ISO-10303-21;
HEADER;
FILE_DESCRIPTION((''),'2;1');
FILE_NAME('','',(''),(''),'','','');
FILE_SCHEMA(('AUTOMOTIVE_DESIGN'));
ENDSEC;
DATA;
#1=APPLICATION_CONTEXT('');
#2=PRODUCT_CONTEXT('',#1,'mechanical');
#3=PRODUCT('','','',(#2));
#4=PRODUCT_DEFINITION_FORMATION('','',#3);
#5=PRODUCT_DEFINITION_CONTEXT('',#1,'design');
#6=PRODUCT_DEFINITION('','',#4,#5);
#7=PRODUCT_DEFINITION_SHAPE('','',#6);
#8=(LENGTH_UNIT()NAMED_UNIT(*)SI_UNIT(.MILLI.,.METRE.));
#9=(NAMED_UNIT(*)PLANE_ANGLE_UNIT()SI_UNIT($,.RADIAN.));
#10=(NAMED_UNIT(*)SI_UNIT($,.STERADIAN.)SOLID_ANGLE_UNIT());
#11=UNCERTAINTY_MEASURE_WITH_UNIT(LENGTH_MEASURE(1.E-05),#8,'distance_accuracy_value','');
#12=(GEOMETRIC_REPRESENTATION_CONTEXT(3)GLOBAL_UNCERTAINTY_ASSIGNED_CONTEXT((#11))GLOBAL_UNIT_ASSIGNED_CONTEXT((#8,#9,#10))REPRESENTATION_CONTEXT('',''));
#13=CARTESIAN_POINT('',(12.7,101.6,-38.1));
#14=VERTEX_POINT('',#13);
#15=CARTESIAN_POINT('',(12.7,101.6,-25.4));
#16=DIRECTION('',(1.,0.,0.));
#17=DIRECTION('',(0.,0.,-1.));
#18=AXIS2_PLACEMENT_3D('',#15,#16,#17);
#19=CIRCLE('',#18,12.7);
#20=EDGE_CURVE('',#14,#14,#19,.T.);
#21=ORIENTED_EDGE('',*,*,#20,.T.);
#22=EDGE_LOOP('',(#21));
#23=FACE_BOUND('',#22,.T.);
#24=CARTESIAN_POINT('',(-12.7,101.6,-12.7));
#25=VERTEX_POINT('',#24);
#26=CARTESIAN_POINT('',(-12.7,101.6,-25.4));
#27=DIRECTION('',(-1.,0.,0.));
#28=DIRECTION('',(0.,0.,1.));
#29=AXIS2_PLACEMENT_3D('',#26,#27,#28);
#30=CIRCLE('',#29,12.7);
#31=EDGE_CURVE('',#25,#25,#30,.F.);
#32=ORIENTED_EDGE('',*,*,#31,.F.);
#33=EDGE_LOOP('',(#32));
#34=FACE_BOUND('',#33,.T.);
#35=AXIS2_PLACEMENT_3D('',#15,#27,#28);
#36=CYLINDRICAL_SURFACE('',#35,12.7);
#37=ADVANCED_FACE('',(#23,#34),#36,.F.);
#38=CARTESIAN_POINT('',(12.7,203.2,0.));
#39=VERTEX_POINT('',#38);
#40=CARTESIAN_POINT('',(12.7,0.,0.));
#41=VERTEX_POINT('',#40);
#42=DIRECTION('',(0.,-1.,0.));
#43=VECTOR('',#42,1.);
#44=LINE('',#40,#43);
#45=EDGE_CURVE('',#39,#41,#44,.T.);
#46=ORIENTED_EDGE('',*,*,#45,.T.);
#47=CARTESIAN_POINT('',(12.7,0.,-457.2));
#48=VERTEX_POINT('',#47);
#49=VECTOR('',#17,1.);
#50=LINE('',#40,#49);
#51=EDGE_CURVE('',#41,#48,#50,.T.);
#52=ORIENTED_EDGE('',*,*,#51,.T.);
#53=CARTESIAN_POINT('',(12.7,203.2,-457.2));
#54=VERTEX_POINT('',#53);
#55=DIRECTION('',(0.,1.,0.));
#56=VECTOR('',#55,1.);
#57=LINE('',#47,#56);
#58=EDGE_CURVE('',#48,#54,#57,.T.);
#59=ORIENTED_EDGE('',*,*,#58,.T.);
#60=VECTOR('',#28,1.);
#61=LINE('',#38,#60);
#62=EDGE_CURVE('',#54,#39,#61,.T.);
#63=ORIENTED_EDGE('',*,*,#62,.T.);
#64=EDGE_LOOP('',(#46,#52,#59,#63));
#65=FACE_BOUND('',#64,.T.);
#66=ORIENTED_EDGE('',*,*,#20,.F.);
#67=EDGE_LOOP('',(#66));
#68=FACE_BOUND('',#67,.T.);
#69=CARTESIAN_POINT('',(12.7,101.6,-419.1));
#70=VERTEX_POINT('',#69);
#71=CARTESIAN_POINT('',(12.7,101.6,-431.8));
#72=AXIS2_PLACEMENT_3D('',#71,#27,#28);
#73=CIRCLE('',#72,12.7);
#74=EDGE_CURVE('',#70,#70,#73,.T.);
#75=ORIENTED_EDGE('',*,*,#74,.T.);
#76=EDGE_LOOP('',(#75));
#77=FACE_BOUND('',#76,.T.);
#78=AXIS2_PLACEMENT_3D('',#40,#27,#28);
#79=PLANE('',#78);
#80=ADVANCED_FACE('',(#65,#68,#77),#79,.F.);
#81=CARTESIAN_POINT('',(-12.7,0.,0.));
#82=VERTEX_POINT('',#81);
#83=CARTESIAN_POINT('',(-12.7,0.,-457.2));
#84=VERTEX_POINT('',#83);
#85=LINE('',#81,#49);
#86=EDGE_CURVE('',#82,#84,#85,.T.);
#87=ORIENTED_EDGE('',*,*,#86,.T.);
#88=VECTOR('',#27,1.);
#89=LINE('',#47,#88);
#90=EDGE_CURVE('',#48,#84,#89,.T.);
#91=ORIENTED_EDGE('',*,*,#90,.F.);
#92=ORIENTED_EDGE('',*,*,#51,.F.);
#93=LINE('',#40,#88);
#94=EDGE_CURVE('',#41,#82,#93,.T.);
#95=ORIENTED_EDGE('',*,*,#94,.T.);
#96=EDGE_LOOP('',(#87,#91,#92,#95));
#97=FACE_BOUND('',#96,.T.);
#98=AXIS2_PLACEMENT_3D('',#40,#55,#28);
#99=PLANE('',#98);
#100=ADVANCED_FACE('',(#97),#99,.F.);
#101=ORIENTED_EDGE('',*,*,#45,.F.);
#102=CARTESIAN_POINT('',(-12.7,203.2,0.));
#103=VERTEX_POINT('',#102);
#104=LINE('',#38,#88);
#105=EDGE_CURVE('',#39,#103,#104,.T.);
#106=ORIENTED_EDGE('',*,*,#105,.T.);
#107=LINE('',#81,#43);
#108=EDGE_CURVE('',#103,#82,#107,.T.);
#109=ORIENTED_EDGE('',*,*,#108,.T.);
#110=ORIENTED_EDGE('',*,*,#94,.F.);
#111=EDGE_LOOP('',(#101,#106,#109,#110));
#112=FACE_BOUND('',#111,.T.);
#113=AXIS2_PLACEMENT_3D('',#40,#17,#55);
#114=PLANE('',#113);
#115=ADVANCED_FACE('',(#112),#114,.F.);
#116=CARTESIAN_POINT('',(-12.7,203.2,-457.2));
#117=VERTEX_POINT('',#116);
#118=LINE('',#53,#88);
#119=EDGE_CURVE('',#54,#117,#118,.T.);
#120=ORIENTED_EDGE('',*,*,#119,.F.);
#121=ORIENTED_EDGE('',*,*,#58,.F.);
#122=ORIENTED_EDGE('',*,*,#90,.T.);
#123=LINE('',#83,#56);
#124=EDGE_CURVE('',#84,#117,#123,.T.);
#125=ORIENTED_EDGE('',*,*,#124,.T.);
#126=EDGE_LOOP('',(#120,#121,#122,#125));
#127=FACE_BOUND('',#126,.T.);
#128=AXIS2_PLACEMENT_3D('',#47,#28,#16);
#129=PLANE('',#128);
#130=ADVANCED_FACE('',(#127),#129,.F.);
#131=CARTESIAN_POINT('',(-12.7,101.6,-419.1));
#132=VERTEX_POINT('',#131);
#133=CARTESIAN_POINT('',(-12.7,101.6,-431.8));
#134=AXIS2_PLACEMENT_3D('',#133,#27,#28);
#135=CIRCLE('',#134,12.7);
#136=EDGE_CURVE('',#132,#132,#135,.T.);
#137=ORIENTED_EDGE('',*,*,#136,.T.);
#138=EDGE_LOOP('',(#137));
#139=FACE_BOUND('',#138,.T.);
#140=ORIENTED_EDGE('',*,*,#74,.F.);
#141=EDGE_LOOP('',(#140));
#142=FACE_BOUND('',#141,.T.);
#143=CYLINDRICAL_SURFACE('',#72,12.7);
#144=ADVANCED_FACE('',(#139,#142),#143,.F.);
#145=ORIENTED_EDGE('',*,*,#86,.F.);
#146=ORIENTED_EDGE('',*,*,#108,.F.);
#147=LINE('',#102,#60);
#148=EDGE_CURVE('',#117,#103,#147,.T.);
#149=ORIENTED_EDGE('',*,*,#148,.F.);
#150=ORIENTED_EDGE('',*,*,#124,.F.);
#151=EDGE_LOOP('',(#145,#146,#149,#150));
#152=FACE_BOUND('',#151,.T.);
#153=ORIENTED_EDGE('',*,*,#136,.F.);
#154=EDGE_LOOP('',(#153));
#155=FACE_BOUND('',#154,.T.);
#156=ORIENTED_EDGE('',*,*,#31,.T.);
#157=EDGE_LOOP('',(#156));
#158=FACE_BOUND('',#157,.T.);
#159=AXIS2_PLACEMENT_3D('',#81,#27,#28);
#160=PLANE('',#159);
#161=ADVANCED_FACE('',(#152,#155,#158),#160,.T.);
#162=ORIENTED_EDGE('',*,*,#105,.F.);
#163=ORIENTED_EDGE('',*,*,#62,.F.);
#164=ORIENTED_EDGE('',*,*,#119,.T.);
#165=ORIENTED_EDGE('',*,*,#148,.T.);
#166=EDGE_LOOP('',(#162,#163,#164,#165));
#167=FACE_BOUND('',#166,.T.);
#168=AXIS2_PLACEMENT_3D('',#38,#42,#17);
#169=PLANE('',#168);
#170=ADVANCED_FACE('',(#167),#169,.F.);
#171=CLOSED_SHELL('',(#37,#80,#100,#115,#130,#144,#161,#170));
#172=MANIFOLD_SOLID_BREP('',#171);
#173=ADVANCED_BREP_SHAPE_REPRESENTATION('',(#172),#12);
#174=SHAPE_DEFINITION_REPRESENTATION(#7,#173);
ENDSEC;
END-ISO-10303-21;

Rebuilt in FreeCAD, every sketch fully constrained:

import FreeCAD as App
import Part
import Sketcher

V = App.Vector
Q = App.Units.Quantity

doc = App.newDocument("Part")
body = doc.addObject("PartDesign::Body", "Body")

sketch1 = body.newObject("Sketcher::SketchObject", "Sketch")
sketch1.AttachmentSupport = (doc.getObject("YZ_Plane"), [""])
sketch1.MapMode = "FlatFace"
sketch1.addGeometry([
    Part.LineSegment(V(203.2, 0, 0), V(0, 0, 0)),
    Part.LineSegment(V(0, 0, 0), V(0, -457.2, 0)),
    Part.LineSegment(V(0, -457.2, 0), V(203.2, -457.2, 0)),
    Part.LineSegment(V(203.2, -457.2, 0), V(203.2, 0, 0)),
], False)
sketch1.addConstraint([
    Sketcher.Constraint("Coincident", 0, 2, 1, 1),
    Sketcher.Constraint("Coincident", 1, 2, 2, 1),
    Sketcher.Constraint("Coincident", 2, 2, 3, 1),
    Sketcher.Constraint("Coincident", 3, 2, 0, 1),
    Sketcher.Constraint("Horizontal", 0),
    Sketcher.Constraint("Vertical", 1),
    Sketcher.Constraint("Horizontal", 2),
    Sketcher.Constraint("Vertical", 3),
    Sketcher.Constraint("Coincident", 0, 2, -1, 1),
    Sketcher.Constraint("DistanceX", 0, 2, 0, 1, Q("8 in")),
    Sketcher.Constraint("DistanceY", 1, 2, 1, 1, Q("18 in")),
])
pad1 = body.newObject("PartDesign::Pad", "Pad")
pad1.Profile = sketch1
pad1.Length = Q("1 in")
pad1.Midplane = True

sketch2 = body.newObject("Sketcher::SketchObject", "Sketch001")
sketch2.AttachmentSupport = (doc.getObject("YZ_Plane"), [""])
sketch2.MapMode = "FlatFace"
sketch2.AttachmentOffset = App.Placement(V(0, 0, 13.7), App.Rotation())
sketch2.addGeometry(Part.Circle(V(101.6, -431.8, 0), V(0, 0, 1), 12.7), False)
sketch2.addConstraint([
    Sketcher.Constraint("Diameter", 0, Q("1 in")),
    Sketcher.Constraint("DistanceX", -1, 1, 0, 3, Q("4 in")),
    Sketcher.Constraint("DistanceY", 0, 3, -1, 1, Q("17 in")),
])
pocket1 = body.newObject("PartDesign::Pocket", "Pocket")
pocket1.Profile = sketch2
pocket1.Length = 27.4
doc.recompute()

datumplane = body.newObject("PartDesign::Plane", "DatumPlane")
datumplane.AttachmentSupport = (doc.getObject("XY_Plane"), [""])
datumplane.MapMode = "FlatFace"
datumplane.AttachmentOffset = App.Placement(V(0, 0, -9 * 25.4), App.Rotation())
mirrored = body.newObject("PartDesign::Mirrored", "Mirrored")
mirrored.Originals = [pocket1]
mirrored.MirrorPlane = (datumplane, [""])
body.Tip = mirrored

doc.recompute()
